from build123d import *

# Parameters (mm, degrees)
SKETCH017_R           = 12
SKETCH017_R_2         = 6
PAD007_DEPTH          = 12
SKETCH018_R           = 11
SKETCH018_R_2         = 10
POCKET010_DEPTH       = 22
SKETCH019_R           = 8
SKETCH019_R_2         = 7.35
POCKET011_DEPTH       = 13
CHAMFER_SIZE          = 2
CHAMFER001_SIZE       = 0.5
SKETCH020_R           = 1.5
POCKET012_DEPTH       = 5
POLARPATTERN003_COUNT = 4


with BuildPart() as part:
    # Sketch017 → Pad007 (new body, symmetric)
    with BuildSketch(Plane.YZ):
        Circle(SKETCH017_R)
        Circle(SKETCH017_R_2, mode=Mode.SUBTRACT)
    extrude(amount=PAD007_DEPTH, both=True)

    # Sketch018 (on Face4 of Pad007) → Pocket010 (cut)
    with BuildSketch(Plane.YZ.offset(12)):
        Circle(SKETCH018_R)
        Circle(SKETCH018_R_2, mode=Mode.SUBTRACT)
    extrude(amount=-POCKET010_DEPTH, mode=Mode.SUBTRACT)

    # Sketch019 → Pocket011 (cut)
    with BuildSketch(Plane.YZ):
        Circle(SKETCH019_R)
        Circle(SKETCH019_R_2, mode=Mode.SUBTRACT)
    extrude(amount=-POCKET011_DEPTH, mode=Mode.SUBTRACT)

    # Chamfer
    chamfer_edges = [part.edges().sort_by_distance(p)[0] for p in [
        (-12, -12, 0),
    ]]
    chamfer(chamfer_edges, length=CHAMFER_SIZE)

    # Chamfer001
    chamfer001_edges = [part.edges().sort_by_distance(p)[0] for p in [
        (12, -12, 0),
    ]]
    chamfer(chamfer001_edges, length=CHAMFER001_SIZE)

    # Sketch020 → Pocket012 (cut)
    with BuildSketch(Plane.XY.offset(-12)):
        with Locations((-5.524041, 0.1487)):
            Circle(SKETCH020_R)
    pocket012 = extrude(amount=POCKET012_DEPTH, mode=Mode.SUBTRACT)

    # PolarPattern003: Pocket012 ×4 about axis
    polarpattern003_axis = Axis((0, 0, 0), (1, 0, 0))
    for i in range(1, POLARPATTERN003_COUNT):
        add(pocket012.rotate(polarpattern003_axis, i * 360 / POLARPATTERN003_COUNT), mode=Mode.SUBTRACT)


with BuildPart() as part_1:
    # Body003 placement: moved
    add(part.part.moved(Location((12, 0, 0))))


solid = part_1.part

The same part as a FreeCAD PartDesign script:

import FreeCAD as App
import Part
import Sketcher


def edges_at(feature, points):
    """Names of the edges that pass closest to the given points."""
    edges = feature.Shape.Edges
    near = lambda p: min(range(len(edges)), key=lambda i: edges[i].distToShape(Part.Vertex(*p))[0])
    return sorted({f"Edge{near(p) + 1}" for p in points})

doc = App.newDocument("Part")
body = doc.addObject("PartDesign::Body", "Body")

# Sketch on YZ plane
sketch1 = body.newObject("Sketcher::SketchObject", "Sketch")
sketch1.AttachmentSupport = (doc.getObject("YZ_Plane"), [""])
sketch1.MapMode = "FlatFace"
sketch1.addGeometry(Part.Circle(App.Vector(0, 0, 0), App.Vector(0, 0, 1), 12), False)
sketch1.addGeometry(Part.Circle(App.Vector(0, 0, 0), App.Vector(0, 0, 1), 6), False)
sketch1.addConstraint(Sketcher.Constraint("Coincident", 0, 3, -1, 1))
sketch1.addConstraint(Sketcher.Constraint("Coincident", 1, 3, -1, 1))
sketch1.addConstraint(Sketcher.Constraint("Diameter", 0, 24.0))
sketch1.addConstraint(Sketcher.Constraint("Diameter", 1, 12.0))
pad1 = body.newObject("PartDesign::Pad", "Pad")
pad1.Profile = sketch1
pad1.Length = 24
pad1.Midplane = True

# Sketch on YZ plane
sketch2 = body.newObject("Sketcher::SketchObject", "Sketch001")
sketch2.AttachmentSupport = (doc.getObject("YZ_Plane"), [""])
sketch2.MapMode = "FlatFace"
sketch2.AttachmentOffset = App.Placement(App.Vector(0, 0, 12), App.Rotation())
sketch2.addGeometry(Part.Circle(App.Vector(0, 0, 0), App.Vector(0, 0, 1), 11), False)
sketch2.addGeometry(Part.Circle(App.Vector(0, 0, 0), App.Vector(0, 0, 1), 10), False)
sketch2.addConstraint(Sketcher.Constraint("Coincident", 0, 3, -1, 1))
sketch2.addConstraint(Sketcher.Constraint("Coincident", 1, 3, -1, 1))
sketch2.addConstraint(Sketcher.Constraint("Diameter", 0, 22.0))
sketch2.addConstraint(Sketcher.Constraint("Diameter", 1, 20.0))
pocket1 = body.newObject("PartDesign::Pocket", "Pocket")
pocket1.Profile = sketch2
pocket1.Length = 22

# Sketch on YZ plane
sketch3 = body.newObject("Sketcher::SketchObject", "Sketch002")
sketch3.AttachmentSupport = (doc.getObject("YZ_Plane"), [""])
sketch3.MapMode = "FlatFace"
sketch3.addGeometry(Part.Circle(App.Vector(0, 0, 0), App.Vector(0, 0, 1), 8), False)
sketch3.addGeometry(Part.Circle(App.Vector(0, 0, 0), App.Vector(0, 0, 1), 7), False)
sketch3.addConstraint(Sketcher.Constraint("Coincident", 0, 3, -1, 1))
sketch3.addConstraint(Sketcher.Constraint("Coincident", 1, 3, -1, 1))
sketch3.addConstraint(Sketcher.Constraint("Diameter", 0, 16.0))
sketch3.addConstraint(Sketcher.Constraint("Diameter", 1, 14.7))
pocket2 = body.newObject("PartDesign::Pocket", "Pocket001")
pocket2.Profile = sketch3
pocket2.Length = 13
doc.recompute()

chamfer = body.newObject("PartDesign::Chamfer", "Chamfer")
chamfer.Base = (pocket2, edges_at(pocket2, [(-12, -12, 0)]))
chamfer.Size = 2
doc.recompute()

chamfer2 = body.newObject("PartDesign::Chamfer", "Chamfer001")
chamfer2.Base = (chamfer, edges_at(chamfer, [(12, -12, 0)]))
chamfer2.Size = 0.5

# Sketch on XY plane
sketch4 = body.newObject("Sketcher::SketchObject", "Sketch003")
sketch4.AttachmentSupport = (doc.getObject("XY_Plane"), [""])
sketch4.MapMode = "FlatFace"
sketch4.AttachmentOffset = App.Placement(App.Vector(0, 0, -12), App.Rotation())
sketch4.addGeometry(Part.Circle(App.Vector(-5.5, 0.1, 0), App.Vector(0, 0, 1), 1.5), False)
sketch4.addConstraint(Sketcher.Constraint("Diameter", 0, 3.0))
sketch4.addConstraint(Sketcher.Constraint("DistanceY", -1, 1, 0, 3, 0.1487))
sketch4.addConstraint(Sketcher.Constraint("DistanceX", 0, 3, -1, 1, 5.524041))
pocket3 = body.newObject("PartDesign::Pocket", "Pocket002")
pocket3.Profile = sketch4
pocket3.Length = 5
pocket3.Reversed = True
doc.recompute()

polarpattern = body.newObject("PartDesign::PolarPattern", "PolarPattern")
polarpattern.Originals = [pocket3]
polarpattern.Axis = (doc.getObject("X_Axis"), [""])
polarpattern.Angle = 360
polarpattern.Occurrences = 4
body.Tip = polarpattern
body2 = doc.addObject("PartDesign::Body", "Body001")
doc.recompute()

body.Placement = App.Placement(App.Vector(12, 0, 0), App.Rotation(App.Vector(0, 0, 1), 0))
boolean = body2.newObject("PartDesign::Boolean", "Boolean")
boolean.Type = "Fuse"
boolean.addObjects([body])

doc.recompute()
